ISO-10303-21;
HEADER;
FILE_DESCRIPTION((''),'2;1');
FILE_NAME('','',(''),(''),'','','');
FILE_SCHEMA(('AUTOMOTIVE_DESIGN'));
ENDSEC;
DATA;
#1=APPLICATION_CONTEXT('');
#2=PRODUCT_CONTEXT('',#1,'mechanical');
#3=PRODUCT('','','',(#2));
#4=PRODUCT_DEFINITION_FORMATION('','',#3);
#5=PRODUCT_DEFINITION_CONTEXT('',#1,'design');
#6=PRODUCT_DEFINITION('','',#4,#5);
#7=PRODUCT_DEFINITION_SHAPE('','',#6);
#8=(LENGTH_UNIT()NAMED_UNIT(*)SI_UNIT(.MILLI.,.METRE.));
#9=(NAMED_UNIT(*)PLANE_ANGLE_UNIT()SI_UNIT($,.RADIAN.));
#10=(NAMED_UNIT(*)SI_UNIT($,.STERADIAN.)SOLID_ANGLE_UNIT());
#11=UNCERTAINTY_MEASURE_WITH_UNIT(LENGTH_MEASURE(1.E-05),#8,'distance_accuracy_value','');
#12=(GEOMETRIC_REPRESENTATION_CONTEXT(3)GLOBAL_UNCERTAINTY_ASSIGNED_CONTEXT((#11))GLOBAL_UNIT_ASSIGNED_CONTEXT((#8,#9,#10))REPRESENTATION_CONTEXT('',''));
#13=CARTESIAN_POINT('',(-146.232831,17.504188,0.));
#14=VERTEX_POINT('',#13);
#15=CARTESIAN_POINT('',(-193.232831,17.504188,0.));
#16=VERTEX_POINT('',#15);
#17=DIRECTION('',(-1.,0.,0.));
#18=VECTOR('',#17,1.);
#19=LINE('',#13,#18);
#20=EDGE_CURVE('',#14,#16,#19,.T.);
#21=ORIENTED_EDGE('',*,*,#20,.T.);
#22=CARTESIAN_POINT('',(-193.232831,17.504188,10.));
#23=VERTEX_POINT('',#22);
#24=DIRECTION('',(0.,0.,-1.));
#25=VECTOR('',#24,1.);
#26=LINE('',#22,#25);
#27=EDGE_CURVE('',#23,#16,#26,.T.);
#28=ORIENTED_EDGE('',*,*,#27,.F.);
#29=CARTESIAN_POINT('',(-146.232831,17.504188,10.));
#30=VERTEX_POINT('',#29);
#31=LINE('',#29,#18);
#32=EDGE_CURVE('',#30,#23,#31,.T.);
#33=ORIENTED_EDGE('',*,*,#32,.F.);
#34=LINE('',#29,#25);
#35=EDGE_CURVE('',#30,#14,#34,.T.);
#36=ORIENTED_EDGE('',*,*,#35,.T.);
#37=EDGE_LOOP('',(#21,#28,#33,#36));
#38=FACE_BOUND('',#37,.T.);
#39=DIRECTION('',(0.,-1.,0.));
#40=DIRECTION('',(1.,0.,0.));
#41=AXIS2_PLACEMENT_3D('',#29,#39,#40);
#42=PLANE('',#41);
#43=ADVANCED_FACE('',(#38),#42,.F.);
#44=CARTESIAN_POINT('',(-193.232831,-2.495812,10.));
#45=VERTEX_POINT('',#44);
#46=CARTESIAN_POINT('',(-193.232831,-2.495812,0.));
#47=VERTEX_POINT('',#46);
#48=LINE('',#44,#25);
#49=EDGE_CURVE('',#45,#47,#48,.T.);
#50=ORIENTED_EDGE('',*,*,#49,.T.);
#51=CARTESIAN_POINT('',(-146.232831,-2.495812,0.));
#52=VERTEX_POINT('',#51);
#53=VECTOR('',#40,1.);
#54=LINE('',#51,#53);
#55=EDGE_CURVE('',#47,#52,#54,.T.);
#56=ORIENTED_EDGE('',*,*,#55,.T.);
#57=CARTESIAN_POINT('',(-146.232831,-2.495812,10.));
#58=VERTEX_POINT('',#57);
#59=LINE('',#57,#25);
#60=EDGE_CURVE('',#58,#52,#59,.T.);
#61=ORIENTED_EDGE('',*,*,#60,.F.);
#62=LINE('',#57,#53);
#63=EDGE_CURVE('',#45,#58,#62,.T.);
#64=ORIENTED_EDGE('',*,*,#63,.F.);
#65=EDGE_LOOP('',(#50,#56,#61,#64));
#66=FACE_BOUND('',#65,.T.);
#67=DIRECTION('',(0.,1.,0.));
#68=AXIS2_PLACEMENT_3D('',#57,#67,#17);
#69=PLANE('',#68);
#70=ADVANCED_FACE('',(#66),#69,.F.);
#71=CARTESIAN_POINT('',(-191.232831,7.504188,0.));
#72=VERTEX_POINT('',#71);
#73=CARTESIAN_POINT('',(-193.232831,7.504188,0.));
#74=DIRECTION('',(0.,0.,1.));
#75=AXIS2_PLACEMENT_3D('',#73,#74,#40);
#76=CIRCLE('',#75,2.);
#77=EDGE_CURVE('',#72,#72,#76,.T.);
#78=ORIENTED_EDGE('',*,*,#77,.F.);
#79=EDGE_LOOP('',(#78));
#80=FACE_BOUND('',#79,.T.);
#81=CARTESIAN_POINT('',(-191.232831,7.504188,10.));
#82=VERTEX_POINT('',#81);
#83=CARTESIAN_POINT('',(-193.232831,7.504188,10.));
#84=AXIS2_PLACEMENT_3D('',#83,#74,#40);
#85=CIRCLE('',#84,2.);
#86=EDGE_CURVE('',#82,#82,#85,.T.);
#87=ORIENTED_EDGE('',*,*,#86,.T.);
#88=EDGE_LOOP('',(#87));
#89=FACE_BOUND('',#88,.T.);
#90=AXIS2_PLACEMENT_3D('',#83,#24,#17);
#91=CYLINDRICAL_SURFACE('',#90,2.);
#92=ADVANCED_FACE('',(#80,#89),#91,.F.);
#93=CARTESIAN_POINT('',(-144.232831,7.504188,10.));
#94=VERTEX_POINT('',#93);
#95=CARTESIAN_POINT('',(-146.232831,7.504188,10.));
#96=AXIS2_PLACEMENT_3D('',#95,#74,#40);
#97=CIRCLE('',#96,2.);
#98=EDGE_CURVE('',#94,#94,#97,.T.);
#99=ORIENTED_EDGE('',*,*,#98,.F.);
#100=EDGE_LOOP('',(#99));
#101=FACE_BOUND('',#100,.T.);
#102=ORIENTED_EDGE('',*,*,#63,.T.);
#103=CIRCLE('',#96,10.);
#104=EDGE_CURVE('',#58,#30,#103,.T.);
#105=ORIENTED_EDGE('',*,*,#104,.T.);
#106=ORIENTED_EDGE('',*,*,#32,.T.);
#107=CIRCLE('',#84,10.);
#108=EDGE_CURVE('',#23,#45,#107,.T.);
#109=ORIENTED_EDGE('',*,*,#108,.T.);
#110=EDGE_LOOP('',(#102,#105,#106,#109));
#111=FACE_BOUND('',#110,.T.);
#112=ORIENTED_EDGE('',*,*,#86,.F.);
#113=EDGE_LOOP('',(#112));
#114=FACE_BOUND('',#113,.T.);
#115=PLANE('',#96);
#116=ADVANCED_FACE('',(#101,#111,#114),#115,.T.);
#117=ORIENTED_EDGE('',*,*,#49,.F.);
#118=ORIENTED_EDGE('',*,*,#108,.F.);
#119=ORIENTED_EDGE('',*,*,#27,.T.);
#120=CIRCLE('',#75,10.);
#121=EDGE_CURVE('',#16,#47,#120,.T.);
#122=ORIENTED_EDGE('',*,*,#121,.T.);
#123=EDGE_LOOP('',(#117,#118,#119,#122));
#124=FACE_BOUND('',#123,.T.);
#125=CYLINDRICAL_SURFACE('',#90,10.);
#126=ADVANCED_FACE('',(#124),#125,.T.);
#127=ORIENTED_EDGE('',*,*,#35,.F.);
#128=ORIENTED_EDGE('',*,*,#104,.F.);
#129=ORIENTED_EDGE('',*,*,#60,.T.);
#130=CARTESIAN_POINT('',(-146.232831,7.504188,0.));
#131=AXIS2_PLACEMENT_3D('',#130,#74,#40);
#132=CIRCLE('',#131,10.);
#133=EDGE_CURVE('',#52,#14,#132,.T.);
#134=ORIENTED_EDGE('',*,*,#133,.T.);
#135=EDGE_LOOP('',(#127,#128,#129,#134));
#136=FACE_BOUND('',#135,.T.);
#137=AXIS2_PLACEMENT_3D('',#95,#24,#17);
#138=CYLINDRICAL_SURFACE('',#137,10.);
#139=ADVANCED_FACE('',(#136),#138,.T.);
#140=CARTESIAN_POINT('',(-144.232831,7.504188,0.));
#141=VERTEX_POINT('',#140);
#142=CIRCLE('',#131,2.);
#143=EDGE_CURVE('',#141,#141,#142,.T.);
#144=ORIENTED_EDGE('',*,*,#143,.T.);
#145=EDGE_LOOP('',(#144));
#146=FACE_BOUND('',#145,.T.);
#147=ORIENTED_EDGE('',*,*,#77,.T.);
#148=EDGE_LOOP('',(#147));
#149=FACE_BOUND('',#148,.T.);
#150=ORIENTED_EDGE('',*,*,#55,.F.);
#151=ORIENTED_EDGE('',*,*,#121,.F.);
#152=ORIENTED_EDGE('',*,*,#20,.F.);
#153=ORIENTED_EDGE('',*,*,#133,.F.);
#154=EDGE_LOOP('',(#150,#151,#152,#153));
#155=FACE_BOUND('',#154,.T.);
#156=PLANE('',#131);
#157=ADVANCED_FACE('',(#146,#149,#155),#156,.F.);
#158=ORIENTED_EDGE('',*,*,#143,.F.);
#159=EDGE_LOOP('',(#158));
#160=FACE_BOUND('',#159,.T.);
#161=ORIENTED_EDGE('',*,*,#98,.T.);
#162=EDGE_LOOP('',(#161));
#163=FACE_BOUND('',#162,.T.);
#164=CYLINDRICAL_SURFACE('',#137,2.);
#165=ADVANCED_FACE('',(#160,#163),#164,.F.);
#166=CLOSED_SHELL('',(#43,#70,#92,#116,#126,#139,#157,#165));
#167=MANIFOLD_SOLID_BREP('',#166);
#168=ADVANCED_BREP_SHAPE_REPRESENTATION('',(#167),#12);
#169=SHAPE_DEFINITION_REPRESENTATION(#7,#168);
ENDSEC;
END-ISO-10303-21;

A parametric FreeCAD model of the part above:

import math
import FreeCAD as App
import Part
import Sketcher

doc = App.newDocument("Part")
body = doc.addObject("PartDesign::Body", "Body")

# Sketch on XY plane
sketch1 = body.newObject("Sketcher::SketchObject", "Sketch")
sketch1.AttachmentSupport = (doc.getObject("XY_Plane"), [""])
sketch1.MapMode = "FlatFace"
sketch1.addGeometry([
    Part.LineSegment(App.Vector(-193.2, -2.5, 0), App.Vector(-146.2, -2.5, 0)),  # 0
    Part.ArcOfCircle(Part.Circle(App.Vector(-146.2, 7.5, 0), App.Vector(0, 0, 1), 10), math.radians(-90), math.radians(90)),  # 1
    Part.LineSegment(App.Vector(-146.2, 17.5, 0), App.Vector(-193.2, 17.5, 0)),  # 2
    Part.ArcOfCircle(Part.Circle(App.Vector(-193.2, 7.5, 0), App.Vector(0, 0, 1), 10), math.radians(90), math.radians(270)),  # 3
    Part.Circle(App.Vector(-146.2, 7.5, 0), App.Vector(0, 0, 1), 2),  # 4
    Part.Circle(App.Vector(-193.2, 7.5, 0), App.Vector(0, 0, 1), 2),  # 5
], False)
sketch1.addConstraint([
    Sketcher.Constraint("Tangent", 0, 2, 1, 1),
    Sketcher.Constraint("Tangent", 1, 2, 2, 1),
    Sketcher.Constraint("Tangent", 2, 2, 3, 1),
    Sketcher.Constraint("Tangent", 3, 2, 0, 1),
    Sketcher.Constraint("Horizontal", 0),
    Sketcher.Constraint("Horizontal", 2),
    Sketcher.Constraint("Coincident", 4, 3, 1, 3),
    Sketcher.Constraint("Coincident", 5, 3, 3, 3),
    Sketcher.Constraint("Equal", 4, 5),
    Sketcher.Constraint("Diameter", 4, 4.0),
    Sketcher.Constraint("Radius", 1, 10.0),
    Sketcher.Constraint("DistanceX", 0, 1, 0, 2, 47.0),
    Sketcher.Constraint("DistanceX", 1, 3, -1, 1, 146.232831),
    Sketcher.Constraint("DistanceY", -1, 1, 1, 3, 7.504188),
])
pad1 = body.newObject("PartDesign::Pad", "Pad")
pad1.Profile = sketch1
pad1.Length = 10

doc.recompute()
